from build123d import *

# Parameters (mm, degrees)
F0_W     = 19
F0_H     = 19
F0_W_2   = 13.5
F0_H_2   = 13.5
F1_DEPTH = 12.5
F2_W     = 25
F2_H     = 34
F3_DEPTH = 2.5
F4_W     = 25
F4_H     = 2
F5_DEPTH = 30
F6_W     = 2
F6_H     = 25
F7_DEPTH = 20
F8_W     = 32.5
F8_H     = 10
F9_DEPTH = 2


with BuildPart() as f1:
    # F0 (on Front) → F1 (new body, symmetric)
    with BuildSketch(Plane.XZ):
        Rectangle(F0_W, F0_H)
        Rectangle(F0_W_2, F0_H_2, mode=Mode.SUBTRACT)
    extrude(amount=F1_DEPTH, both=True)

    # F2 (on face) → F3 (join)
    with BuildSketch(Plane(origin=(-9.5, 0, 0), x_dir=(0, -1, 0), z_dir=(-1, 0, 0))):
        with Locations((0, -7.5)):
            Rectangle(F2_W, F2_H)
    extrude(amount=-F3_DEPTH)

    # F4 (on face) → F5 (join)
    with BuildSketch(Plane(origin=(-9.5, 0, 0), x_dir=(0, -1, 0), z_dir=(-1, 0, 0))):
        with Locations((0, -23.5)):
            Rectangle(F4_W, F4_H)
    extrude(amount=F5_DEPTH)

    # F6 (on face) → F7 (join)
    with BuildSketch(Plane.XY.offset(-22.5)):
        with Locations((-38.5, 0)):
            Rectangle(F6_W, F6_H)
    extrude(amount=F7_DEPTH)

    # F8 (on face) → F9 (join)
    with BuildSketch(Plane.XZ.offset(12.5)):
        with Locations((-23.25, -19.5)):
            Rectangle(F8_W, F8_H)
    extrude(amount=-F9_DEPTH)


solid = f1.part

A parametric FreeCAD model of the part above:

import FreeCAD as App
import Part
import Sketcher

V = App.Vector
Q = App.Units.Quantity

doc = App.newDocument("Part")
body = doc.addObject("PartDesign::Body", "Body")

sketch1 = body.newObject("Sketcher::SketchObject", "Sketch")
sketch1.AttachmentSupport = (doc.getObject("XZ_Plane"), [""])
sketch1.MapMode = "FlatFace"
sketch1.addGeometry([
    Part.LineSegment(V(-9.5, 9.5, 0), V(-9.5, -9.5, 0)),
    Part.LineSegment(V(-9.5, -9.5, 0), V(9.5, -9.5, 0)),
    Part.LineSegment(V(9.5, -9.5, 0), V(9.5, 9.5, 0)),
    Part.LineSegment(V(9.5, 9.5, 0), V(-9.5, 9.5, 0)),
    Part.LineSegment(V(6.75, -6.75, 0), V(-6.75, -6.75, 0)),
    Part.LineSegment(V(-6.75, -6.75, 0), V(-6.75, 6.75, 0)),
    Part.LineSegment(V(-6.75, 6.75, 0), V(6.75, 6.75, 0)),
    Part.LineSegment(V(6.75, 6.75, 0), V(6.75, -6.75, 0)),
], False)
sketch1.addConstraint([
    Sketcher.Constraint("Coincident", 0, 2, 1, 1),
    Sketcher.Constraint("Coincident", 1, 2, 2, 1),
    Sketcher.Constraint("Coincident", 2, 2, 3, 1),
    Sketcher.Constraint("Coincident", 3, 2, 0, 1),
    Sketcher.Constraint("Coincident", 4, 2, 5, 1),
    Sketcher.Constraint("Coincident", 5, 2, 6, 1),
    Sketcher.Constraint("Coincident", 6, 2, 7, 1),
    Sketcher.Constraint("Coincident", 7, 2, 4, 1),
    Sketcher.Constraint("Vertical", 0),
    Sketcher.Constraint("Horizontal", 1),
    Sketcher.Constraint("Vertical", 2),
    Sketcher.Constraint("Horizontal", 3),
    Sketcher.Constraint("Horizontal", 4),
    Sketcher.Constraint("Vertical", 5),
    Sketcher.Constraint("Horizontal", 6),
    Sketcher.Constraint("Vertical", 7),
    Sketcher.Constraint("Symmetric", 0, 2, 2, 2, -1, 1),
    Sketcher.Constraint("Symmetric", 4, 2, 6, 2, -1, 1),
    Sketcher.Constraint("Equal", 3, 0),
    Sketcher.Constraint("Equal", 6, 5),
    Sketcher.Constraint("DistanceX", 1, 1, 1, 2, Q("19 mm")),
    Sketcher.Constraint("DistanceX", 4, 2, 4, 1, Q("13.5 mm")),
])
pad1 = body.newObject("PartDesign::Pad", "Pad")
pad1.Profile = sketch1
pad1.Length = 25
pad1.Midplane = True

sketch2 = body.newObject("Sketcher::SketchObject", "Sketch001")
sketch2.AttachmentSupport = (doc.getObject("YZ_Plane"), [""])
sketch2.MapMode = "FlatFace"
sketch2.AttachmentOffset = App.Placement(V(0, 0, -9.5), App.Rotation())
sketch2.addGeometry([
    Part.LineSegment(V(12.5, 9.5, 0), V(12.5, -24.5, 0)),
    Part.LineSegment(V(12.5, -24.5, 0), V(-12.5, -24.5, 0)),
    Part.LineSegment(V(-12.5, -24.5, 0), V(-12.5, 9.5, 0)),
    Part.LineSegment(V(-12.5, 9.5, 0), V(12.5, 9.5, 0)),
], False)
sketch2.addConstraint([
    Sketcher.Constraint("Coincident", 0, 2, 1, 1),
    Sketcher.Constraint("Coincident", 1, 2, 2, 1),
    Sketcher.Constraint("Coincident", 2, 2, 3, 1),
    Sketcher.Constraint("Coincident", 3, 2, 0, 1),
    Sketcher.Constraint("Vertical", 0),
    Sketcher.Constraint("Horizontal", 1),
    Sketcher.Constraint("Vertical", 2),
    Sketcher.Constraint("Horizontal", 3),
    Sketcher.Constraint("DistanceX", 1, 2, 1, 1, Q("25 mm")),
    Sketcher.Constraint("DistanceY", 0, 2, 0, 1, Q("34 mm")),
    Sketcher.Constraint("DistanceX", -1, 1, 0, 2, Q("12.5 mm")),
    Sketcher.Constraint("DistanceY", 0, 2, -1, 1, Q("24.5 mm")),
])
pad2 = body.newObject("PartDesign::Pad", "Pad001")
pad2.Profile = sketch2
pad2.Length = 2.5

sketch3 = body.newObject("Sketcher::SketchObject", "Sketch002")
sketch3.AttachmentSupport = (doc.getObject("YZ_Plane"), [""])
sketch3.MapMode = "FlatFace"
sketch3.AttachmentOffset = App.Placement(V(0, 0, -9.5), App.Rotation())
sketch3.addGeometry([
    Part.LineSegment(V(12.5, -22.5, 0), V(12.5, -24.5, 0)),
    Part.LineSegment(V(12.5, -24.5, 0), V(-12.5, -24.5, 0)),
    Part.LineSegment(V(-12.5, -24.5, 0), V(-12.5, -22.5, 0)),
    Part.LineSegment(V(-12.5, -22.5, 0), V(12.5, -22.5, 0)),
], False)
sketch3.addConstraint([
    Sketcher.Constraint("Coincident", 0, 2, 1, 1),
    Sketcher.Constraint("Coincident", 1, 2, 2, 1),
    Sketcher.Constraint("Coincident", 2, 2, 3, 1),
    Sketcher.Constraint("Coincident", 3, 2, 0, 1),
    Sketcher.Constraint("Vertical", 0),
    Sketcher.Constraint("Horizontal", 1),
    Sketcher.Constraint("Vertical", 2),
    Sketcher.Constraint("Horizontal", 3),
    Sketcher.Constraint("DistanceX", 1, 2, 1, 1, Q("25 mm")),
    Sketcher.Constraint("DistanceY", 0, 2, 0, 1, Q("2 mm")),
    Sketcher.Constraint("DistanceX", -1, 1, 0, 2, Q("12.5 mm")),
    Sketcher.Constraint("DistanceY", 0, 2, -1, 1, Q("24.5 mm")),
])
pad3 = body.newObject("PartDesign::Pad", "Pad002")
pad3.Profile = sketch3
pad3.Length = 30
pad3.Reversed = True

sketch4 = body.newObject("Sketcher::SketchObject", "Sketch003")
sketch4.AttachmentSupport = (doc.getObject("XY_Plane"), [""])
sketch4.MapMode = "FlatFace"
sketch4.AttachmentOffset = App.Placement(V(0, 0, -22.5), App.Rotation())
sketch4.addGeometry([
    Part.LineSegment(V(-39.5, 12.5, 0), V(-39.5, -12.5, 0)),
    Part.LineSegment(V(-39.5, -12.5, 0), V(-37.5, -12.5, 0)),
    Part.LineSegment(V(-37.5, -12.5, 0), V(-37.5, 12.5, 0)),
    Part.LineSegment(V(-37.5, 12.5, 0), V(-39.5, 12.5, 0)),
], False)
sketch4.addConstraint([
    Sketcher.Constraint("Coincident", 0, 2, 1, 1),
    Sketcher.Constraint("Coincident", 1, 2, 2, 1),
    Sketcher.Constraint("Coincident", 2, 2, 3, 1),
    Sketcher.Constraint("Coincident", 3, 2, 0, 1),
    Sketcher.Constraint("Vertical", 0),
    Sketcher.Constraint("Horizontal", 1),
    Sketcher.Constraint("Vertical", 2),
    Sketcher.Constraint("Horizontal", 3),
    Sketcher.Constraint("DistanceX", 1, 1, 1, 2, Q("2 mm")),
    Sketcher.Constraint("DistanceY", 0, 2, 0, 1, Q("25 mm")),
    Sketcher.Constraint("DistanceX", 0, 2, -1, 1, Q("39.5 mm")),
    Sketcher.Constraint("DistanceY", 0, 2, -1, 1, Q("12.5 mm")),
])
pad4 = body.newObject("PartDesign::Pad", "Pad003")
pad4.Profile = sketch4
pad4.Length = 20

sketch5 = body.newObject("Sketcher::SketchObject", "Sketch004")
sketch5.AttachmentSupport = (doc.getObject("XZ_Plane"), [""])
sketch5.MapMode = "FlatFace"
sketch5.AttachmentOffset = App.Placement(V(0, 0, 12.5), App.Rotation())
sketch5.addGeometry([
    Part.LineSegment(V(-39.5, -14.5, 0), V(-39.5, -24.5, 0)),
    Part.LineSegment(V(-39.5, -24.5, 0), V(-7, -24.5, 0)),
    Part.LineSegment(V(-7, -24.5, 0), V(-7, -14.5, 0)),
    Part.LineSegment(V(-7, -14.5, 0), V(-39.5, -14.5, 0)),
], False)
sketch5.addConstraint([
    Sketcher.Constraint("Coincident", 0, 2, 1, 1),
    Sketcher.Constraint("Coincident", 1, 2, 2, 1),
    Sketcher.Constraint("Coincident", 2, 2, 3, 1),
    Sketcher.Constraint("Coincident", 3, 2, 0, 1),
    Sketcher.Constraint("Vertical", 0),
    Sketcher.Constraint("Horizontal", 1),
    Sketcher.Constraint("Vertical", 2),
    Sketcher.Constraint("Horizontal", 3),
    Sketcher.Constraint("DistanceY", 0, 2, 0, 1, Q("10 mm")),
    Sketcher.Constraint("DistanceX", 1, 1, 1, 2, Q("32.5 mm")),
    Sketcher.Constraint("DistanceX", 1, 2, -1, 1, Q("7 mm")),
    Sketcher.Constraint("DistanceY", 0, 2, -1, 1, Q("24.5 mm")),
])
pad5 = body.newObject("PartDesign::Pad", "Pad004")
pad5.Profile = sketch5
pad5.Length = 2
pad5.Reversed = True

doc.recompute()
